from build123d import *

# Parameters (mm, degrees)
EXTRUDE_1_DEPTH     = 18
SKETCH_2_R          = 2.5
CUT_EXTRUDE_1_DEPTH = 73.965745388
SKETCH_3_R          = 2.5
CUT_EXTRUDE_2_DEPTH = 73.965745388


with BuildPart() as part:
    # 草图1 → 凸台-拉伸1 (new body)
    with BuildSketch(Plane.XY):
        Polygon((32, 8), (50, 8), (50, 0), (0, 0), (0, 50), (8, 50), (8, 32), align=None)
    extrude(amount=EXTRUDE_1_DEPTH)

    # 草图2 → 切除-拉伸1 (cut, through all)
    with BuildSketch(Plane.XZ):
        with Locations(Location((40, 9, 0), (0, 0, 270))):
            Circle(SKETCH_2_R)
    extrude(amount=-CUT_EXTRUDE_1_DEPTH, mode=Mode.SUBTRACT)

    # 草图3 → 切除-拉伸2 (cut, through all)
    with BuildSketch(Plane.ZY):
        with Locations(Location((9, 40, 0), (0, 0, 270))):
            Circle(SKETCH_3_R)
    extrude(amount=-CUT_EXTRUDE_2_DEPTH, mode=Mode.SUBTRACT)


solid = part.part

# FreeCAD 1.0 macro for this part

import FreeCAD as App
import Part
import Sketcher
from FreeCAD import Vector


def add_polygon(sketch, points):
    """Adds a closed chain of lines whose ends are joined by coincident constraints."""
    first, n = sketch.GeometryCount, len(points)
    for a, b in zip(points, points[1:] + points[:1]):
        sketch.addGeometry(Part.LineSegment(App.Vector(*a, 0), App.Vector(*b, 0)), False)
    for i in range(n):
        sketch.addConstraint(Sketcher.Constraint("Coincident", first + i, 2, first + (i + 1) % n, 1))

doc = App.newDocument("Part")
body = doc.addObject("PartDesign::Body", "Body")

# Sketch on XY plane
sketch1 = body.newObject("Sketcher::SketchObject", "Sketch")
sketch1.AttachmentSupport = (doc.getObject("XY_Plane"), [""])
sketch1.MapMode = "FlatFace"
add_polygon(sketch1, [(50, 8), (32, 8), (8, 32), (8, 50), (0, 50), (0, 0), (50, 0)])  # lines 0-6
sketch1.addConstraint(Sketcher.Constraint("Horizontal", 0))
sketch1.addConstraint(Sketcher.Constraint("Vertical", 2))
sketch1.addConstraint(Sketcher.Constraint("Horizontal", 3))
sketch1.addConstraint(Sketcher.Constraint("Vertical", 4))
sketch1.addConstraint(Sketcher.Constraint("Horizontal", 5))
sketch1.addConstraint(Sketcher.Constraint("Vertical", 6))
sketch1.addConstraint(Sketcher.Constraint("Coincident", 4, 2, -1, 1))
sketch1.addConstraint(Sketcher.Constraint("Equal", 0, 2))
sketch1.addConstraint(Sketcher.Constraint("Equal", 5, 4))
sketch1.addConstraint(Sketcher.Constraint("Equal", 3, 6))
sketch1.addConstraint(Sketcher.Constraint("DistanceX", 0, 2, 0, 1, 18.0))
sketch1.addConstraint(Sketcher.Constraint("DistanceX", 3, 2, 3, 1, 8.0))
sketch1.addConstraint(Sketcher.Constraint("DistanceX", 5, 1, 5, 2, 50.0))
pad1 = body.newObject("PartDesign::Pad", "Pad")
pad1.Profile = sketch1
pad1.Length = 18

# Sketch on XZ plane
sketch2 = body.newObject("Sketcher::SketchObject", "Sketch001")
sketch2.AttachmentSupport = (doc.getObject("XZ_Plane"), [""])
sketch2.MapMode = "FlatFace"
sketch2.addGeometry(Part.Circle(Vector(40, 9, 0), Vector(0, 0, 1), 2.5), False)
sketch2.addConstraint(Sketcher.Constraint("Diameter", 0, 5.0))
sketch2.addConstraint(Sketcher.Constraint("DistanceX", -1, 1, 0, 3, 40.0))
sketch2.addConstraint(Sketcher.Constraint("DistanceY", -1, 1, 0, 3, 9.0))
pocket1 = body.newObject("PartDesign::Pocket", "Pocket")
pocket1.Profile = sketch2
pocket1.Type = "ThroughAll"

# Sketch on YZ plane
sketch3 = body.newObject("Sketcher::SketchObject", "Sketch002")
sketch3.AttachmentSupport = (doc.getObject("YZ_Plane"), [""])
sketch3.MapMode = "FlatFace"
sketch3.addGeometry(Part.Circle(Vector(40, 9, 0), Vector(0, 0, 1), 2.5), False)
sketch3.addConstraint(Sketcher.Constraint("Diameter", 0, 5.0))
sketch3.addConstraint(Sketcher.Constraint("DistanceX", -1, 1, 0, 3, 40.0))
sketch3.addConstraint(Sketcher.Constraint("DistanceY", -1, 1, 0, 3, 9.0))
pocket2 = body.newObject("PartDesign::Pocket", "Pocket001")
pocket2.Profile = sketch3
pocket2.Type = "ThroughAll"
pocket2.Reversed = True

doc.recompute()
